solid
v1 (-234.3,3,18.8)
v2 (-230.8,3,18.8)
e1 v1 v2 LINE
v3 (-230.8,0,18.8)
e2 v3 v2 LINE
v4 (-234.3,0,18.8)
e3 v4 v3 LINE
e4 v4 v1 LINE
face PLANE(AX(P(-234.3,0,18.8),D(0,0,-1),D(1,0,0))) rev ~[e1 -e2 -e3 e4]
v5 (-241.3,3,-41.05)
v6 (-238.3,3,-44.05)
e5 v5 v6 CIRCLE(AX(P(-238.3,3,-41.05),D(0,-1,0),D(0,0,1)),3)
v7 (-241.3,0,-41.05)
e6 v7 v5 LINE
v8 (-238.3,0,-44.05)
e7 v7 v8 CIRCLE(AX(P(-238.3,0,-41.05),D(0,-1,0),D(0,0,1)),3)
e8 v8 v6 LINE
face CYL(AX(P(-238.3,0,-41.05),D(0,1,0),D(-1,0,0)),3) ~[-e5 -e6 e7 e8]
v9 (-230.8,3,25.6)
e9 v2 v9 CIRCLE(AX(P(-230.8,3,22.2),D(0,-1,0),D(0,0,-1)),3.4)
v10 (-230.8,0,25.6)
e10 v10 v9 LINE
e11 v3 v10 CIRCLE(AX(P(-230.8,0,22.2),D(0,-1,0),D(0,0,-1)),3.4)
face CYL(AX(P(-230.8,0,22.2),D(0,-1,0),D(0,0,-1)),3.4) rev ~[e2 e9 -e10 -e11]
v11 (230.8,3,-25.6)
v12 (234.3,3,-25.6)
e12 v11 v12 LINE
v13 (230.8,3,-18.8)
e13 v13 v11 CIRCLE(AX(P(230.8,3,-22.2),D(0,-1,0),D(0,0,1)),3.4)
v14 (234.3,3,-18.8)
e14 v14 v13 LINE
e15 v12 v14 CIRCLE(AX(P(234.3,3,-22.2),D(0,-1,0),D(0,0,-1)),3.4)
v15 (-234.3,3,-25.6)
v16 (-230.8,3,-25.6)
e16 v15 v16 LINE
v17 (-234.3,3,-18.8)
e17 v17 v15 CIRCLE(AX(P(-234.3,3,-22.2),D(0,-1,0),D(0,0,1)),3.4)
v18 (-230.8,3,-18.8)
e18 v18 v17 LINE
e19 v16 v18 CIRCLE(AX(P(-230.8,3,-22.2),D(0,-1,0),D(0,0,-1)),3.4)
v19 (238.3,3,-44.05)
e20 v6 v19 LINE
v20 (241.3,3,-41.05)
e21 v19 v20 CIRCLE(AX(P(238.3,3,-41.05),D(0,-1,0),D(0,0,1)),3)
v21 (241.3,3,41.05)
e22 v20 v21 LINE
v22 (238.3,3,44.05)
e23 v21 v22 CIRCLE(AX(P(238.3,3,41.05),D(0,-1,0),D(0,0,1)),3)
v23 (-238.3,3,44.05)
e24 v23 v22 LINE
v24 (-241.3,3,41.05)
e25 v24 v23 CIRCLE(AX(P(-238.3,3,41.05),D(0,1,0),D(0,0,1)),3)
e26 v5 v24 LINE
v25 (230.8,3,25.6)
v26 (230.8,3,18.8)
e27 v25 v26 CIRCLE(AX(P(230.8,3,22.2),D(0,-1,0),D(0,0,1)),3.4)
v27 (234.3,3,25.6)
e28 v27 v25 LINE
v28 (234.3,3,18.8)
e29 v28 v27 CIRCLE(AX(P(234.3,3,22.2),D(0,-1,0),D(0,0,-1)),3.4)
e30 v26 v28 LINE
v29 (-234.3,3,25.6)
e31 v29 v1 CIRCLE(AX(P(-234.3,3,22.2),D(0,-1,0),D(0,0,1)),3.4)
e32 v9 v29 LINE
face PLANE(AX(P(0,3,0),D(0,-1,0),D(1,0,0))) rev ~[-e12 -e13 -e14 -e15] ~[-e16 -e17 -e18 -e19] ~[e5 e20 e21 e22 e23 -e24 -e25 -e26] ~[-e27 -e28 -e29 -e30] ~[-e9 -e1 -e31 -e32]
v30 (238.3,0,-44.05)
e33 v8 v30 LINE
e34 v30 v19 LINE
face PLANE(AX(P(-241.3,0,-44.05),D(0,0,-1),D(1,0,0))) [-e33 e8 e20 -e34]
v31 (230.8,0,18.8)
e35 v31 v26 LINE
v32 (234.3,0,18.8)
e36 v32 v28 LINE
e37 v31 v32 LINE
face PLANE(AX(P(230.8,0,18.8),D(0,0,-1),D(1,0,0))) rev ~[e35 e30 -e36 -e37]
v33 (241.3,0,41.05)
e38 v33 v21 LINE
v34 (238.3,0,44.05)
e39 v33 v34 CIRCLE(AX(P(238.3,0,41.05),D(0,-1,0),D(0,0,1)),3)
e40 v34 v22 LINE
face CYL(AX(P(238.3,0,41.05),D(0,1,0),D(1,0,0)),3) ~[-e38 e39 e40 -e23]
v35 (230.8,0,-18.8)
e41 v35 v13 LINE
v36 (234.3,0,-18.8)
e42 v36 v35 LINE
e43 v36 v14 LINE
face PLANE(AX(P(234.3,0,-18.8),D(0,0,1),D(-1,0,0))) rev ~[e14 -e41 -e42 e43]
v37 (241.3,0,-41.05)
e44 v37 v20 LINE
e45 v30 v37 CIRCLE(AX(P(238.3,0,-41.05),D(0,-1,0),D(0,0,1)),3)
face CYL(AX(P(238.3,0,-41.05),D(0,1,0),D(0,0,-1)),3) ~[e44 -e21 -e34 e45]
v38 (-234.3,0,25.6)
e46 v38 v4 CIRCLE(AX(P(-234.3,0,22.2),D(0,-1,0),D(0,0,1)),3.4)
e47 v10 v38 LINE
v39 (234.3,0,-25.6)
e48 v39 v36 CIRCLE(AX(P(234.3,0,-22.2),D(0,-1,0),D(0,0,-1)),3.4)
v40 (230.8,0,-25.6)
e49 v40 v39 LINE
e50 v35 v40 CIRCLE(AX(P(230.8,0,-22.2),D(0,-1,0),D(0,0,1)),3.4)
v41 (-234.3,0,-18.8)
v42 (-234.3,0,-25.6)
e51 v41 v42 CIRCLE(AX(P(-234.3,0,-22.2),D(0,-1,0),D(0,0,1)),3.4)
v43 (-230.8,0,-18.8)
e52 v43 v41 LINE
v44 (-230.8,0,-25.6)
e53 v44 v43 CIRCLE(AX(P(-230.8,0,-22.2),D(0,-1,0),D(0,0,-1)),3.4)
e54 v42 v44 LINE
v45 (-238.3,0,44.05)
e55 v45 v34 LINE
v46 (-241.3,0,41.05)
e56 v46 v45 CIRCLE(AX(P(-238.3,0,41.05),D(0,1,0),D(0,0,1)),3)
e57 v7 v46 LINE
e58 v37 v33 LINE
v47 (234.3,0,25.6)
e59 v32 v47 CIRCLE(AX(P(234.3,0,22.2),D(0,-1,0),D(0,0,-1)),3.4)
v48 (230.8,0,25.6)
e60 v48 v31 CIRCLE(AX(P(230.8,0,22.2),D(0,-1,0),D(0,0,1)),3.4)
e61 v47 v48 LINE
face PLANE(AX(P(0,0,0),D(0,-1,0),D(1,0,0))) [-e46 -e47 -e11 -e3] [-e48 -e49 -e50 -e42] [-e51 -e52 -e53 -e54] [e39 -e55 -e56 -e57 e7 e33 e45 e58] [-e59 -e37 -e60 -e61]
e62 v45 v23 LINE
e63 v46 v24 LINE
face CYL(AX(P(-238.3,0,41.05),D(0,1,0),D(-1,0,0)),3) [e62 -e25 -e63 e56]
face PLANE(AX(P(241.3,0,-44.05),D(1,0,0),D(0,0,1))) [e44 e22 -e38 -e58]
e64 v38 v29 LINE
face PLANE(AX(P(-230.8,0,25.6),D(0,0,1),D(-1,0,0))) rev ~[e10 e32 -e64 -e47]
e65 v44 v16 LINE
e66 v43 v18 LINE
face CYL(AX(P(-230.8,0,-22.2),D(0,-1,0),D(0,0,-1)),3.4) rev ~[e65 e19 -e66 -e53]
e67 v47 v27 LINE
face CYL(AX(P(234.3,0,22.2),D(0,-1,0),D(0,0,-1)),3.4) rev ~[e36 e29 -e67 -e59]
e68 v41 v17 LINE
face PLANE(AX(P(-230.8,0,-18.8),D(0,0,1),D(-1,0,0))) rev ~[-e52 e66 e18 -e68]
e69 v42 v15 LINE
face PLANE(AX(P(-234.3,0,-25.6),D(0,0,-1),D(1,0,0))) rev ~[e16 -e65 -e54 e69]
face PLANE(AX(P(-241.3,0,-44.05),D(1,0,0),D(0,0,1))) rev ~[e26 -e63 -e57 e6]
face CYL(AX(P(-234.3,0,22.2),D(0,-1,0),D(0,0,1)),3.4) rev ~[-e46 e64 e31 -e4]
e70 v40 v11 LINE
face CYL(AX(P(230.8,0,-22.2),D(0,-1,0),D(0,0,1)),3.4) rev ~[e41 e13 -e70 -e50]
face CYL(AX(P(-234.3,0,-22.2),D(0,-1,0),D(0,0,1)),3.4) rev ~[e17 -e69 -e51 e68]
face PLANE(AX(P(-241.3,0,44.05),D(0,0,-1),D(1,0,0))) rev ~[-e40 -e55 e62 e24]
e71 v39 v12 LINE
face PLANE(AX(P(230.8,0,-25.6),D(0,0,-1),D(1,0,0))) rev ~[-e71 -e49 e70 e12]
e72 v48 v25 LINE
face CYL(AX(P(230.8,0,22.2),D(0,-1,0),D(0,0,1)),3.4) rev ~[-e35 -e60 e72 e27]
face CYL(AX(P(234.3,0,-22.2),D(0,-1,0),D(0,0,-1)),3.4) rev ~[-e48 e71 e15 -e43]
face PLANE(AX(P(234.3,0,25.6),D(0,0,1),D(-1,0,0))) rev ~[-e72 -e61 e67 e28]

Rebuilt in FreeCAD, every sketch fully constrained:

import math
import FreeCAD as App
import Part
import Sketcher


def edges_at(feature, points):
    """Names of the edges that pass closest to the given points."""
    edges = feature.Shape.Edges
    near = lambda p: min(range(len(edges)), key=lambda i: edges[i].distToShape(Part.Vertex(*p))[0])
    return sorted({f"Edge{near(p) + 1}" for p in points})

doc = App.newDocument("Part")
body = doc.addObject("PartDesign::Body", "Body")

sketch1 = doc.addObject("Sketcher::SketchObject", "Sketch")
body.addObject(sketch1)
sketch1.AttachmentSupport = (doc.XZ_Plane, [""])
sketch1.MapMode = "FlatFace"
sketch1.addGeometry([
    Part.LineSegment(App.Vector(-241, 44, 0), App.Vector(-241, -44, 0)),
    Part.LineSegment(App.Vector(-241, -44, 0), App.Vector(241, -44, 0)),
    Part.LineSegment(App.Vector(241, -44, 0), App.Vector(241, 44, 0)),
    Part.LineSegment(App.Vector(241, 44, 0), App.Vector(-241, 44, 0)),
], False)
sketch1.addConstraint([
    Sketcher.Constraint("Coincident", 0, 2, 1, 1),
    Sketcher.Constraint("Coincident", 1, 2, 2, 1),
    Sketcher.Constraint("Coincident", 2, 2, 3, 1),
    Sketcher.Constraint("Coincident", 3, 2, 0, 1),
    Sketcher.Constraint("Vertical", 0),
    Sketcher.Constraint("Horizontal", 1),
    Sketcher.Constraint("Vertical", 2),
    Sketcher.Constraint("Horizontal", 3),
    Sketcher.Constraint("Symmetric", 0, 2, 2, 2, -1, 1),
    Sketcher.Constraint("DistanceX", 1, 1, 1, 2, 482.6),
    Sketcher.Constraint("DistanceY", 0, 2, 0, 1, 88.1),
])
pad1 = doc.addObject("PartDesign::Pad", "Pad")
body.addObject(pad1)
pad1.Profile = sketch1
pad1.Length = 3
pad1.Reversed = True
doc.recompute()

fillet = doc.addObject("PartDesign::Fillet", "Fillet")
body.addObject(fillet)
fillet.Base = (pad1, edges_at(pad1, [
    (-241.3, 1.5, 44.05),
    (241.3, 1.5, 44.05),
    (241.3, 1.5, -44.05),
    (-241.3, 1.5, -44.05),
]))
fillet.Radius = 3

sketch2 = doc.addObject("Sketcher::SketchObject", "Sketch001")
body.addObject(sketch2)
sketch2.AttachmentSupport = (doc.XZ_Plane, [""])
sketch2.MapMode = "FlatFace"
sketch2.addGeometry([
    Part.LineSegment(App.Vector(-234.3, 18.8, 0), App.Vector(-230.8, 18.8, 0)),
    Part.ArcOfCircle(Part.Circle(App.Vector(-230.8, 22.2, 0), App.Vector(0, 0, 1), 3.4), math.radians(-90), math.radians(90)),
    Part.LineSegment(App.Vector(-230.8, 25.6, 0), App.Vector(-234.3, 25.6, 0)),
    Part.ArcOfCircle(Part.Circle(App.Vector(-234.3, 22.2, 0), App.Vector(0, 0, 1), 3.4), math.radians(90), math.radians(270)),
    Part.ArcOfCircle(Part.Circle(App.Vector(230.8, 22.2, 0), App.Vector(0, 0, 1), 3.4), math.radians(90), math.radians(270)),
    Part.LineSegment(App.Vector(230.8, 18.8, 0), App.Vector(234.3, 18.8, 0)),
    Part.ArcOfCircle(Part.Circle(App.Vector(234.3, 22.2, 0), App.Vector(0, 0, 1), 3.4), math.radians(-90), math.radians(90)),
    Part.LineSegment(App.Vector(234.3, 25.6, 0), App.Vector(230.8, 25.6, 0)),
    Part.LineSegment(App.Vector(230.8, -25.6, 0), App.Vector(234.3, -25.6, 0)),
    Part.ArcOfCircle(Part.Circle(App.Vector(234.3, -22.2, 0), App.Vector(0, 0, 1), 3.4), math.radians(-90), math.radians(90)),
    Part.LineSegment(App.Vector(234.3, -18.8, 0), App.Vector(230.8, -18.8, 0)),
    Part.ArcOfCircle(Part.Circle(App.Vector(230.8, -22.2, 0), App.Vector(0, 0, 1), 3.4), math.radians(90), math.radians(270)),
    Part.ArcOfCircle(Part.Circle(App.Vector(-230.8, -22.2, 0), App.Vector(0, 0, 1), 3.4), math.radians(-90), math.radians(90)),
    Part.LineSegment(App.Vector(-230.8, -18.8, 0), App.Vector(-234.3, -18.8, 0)),
    Part.ArcOfCircle(Part.Circle(App.Vector(-234.3, -22.2, 0), App.Vector(0, 0, 1), 3.4), math.radians(90), math.radians(270)),
    Part.LineSegment(App.Vector(-234.3, -25.6, 0), App.Vector(-230.8, -25.6, 0)),
], False)
sketch2.addConstraint([
    Sketcher.Constraint("Tangent", 0, 2, 1, 1),
    Sketcher.Constraint("Tangent", 1, 2, 2, 1),
    Sketcher.Constraint("Tangent", 2, 2, 3, 1),
    Sketcher.Constraint("Tangent", 3, 2, 0, 1),
    Sketcher.Constraint("Tangent", 4, 2, 5, 1),
    Sketcher.Constraint("Tangent", 5, 2, 6, 1),
    Sketcher.Constraint("Tangent", 6, 2, 7, 1),
    Sketcher.Constraint("Tangent", 7, 2, 4, 1),
    Sketcher.Constraint("Tangent", 8, 2, 9, 1),
    Sketcher.Constraint("Tangent", 9, 2, 10, 1),
    Sketcher.Constraint("Tangent", 10, 2, 11, 1),
    Sketcher.Constraint("Tangent", 11, 2, 8, 1),
    Sketcher.Constraint("Tangent", 12, 2, 13, 1),
    Sketcher.Constraint("Tangent", 13, 2, 14, 1),
    Sketcher.Constraint("Tangent", 14, 2, 15, 1),
    Sketcher.Constraint("Tangent", 15, 2, 12, 1),
    Sketcher.Constraint("Horizontal", 0),
    Sketcher.Constraint("Horizontal", 2),
    Sketcher.Constraint("Horizontal", 5),
    Sketcher.Constraint("Horizontal", 7),
    Sketcher.Constraint("Horizontal", 8),
    Sketcher.Constraint("Horizontal", 10),
    Sketcher.Constraint("Horizontal", 13),
    Sketcher.Constraint("Horizontal", 15),
    Sketcher.Constraint("Equal", 3, 4),
    Sketcher.Constraint("Equal", 6, 9),
    Sketcher.Constraint("Equal", 11, 12),
    Sketcher.Constraint("Symmetric", 3, 3, 9, 3, -1, 1),
    Sketcher.Constraint("Symmetric", 4, 3, 12, 3, -1, 1),
    Sketcher.Constraint("Symmetric", 1, 3, 4, 3, -2),
    Sketcher.Constraint("Vertical", 6, 3, 9, 3),
    Sketcher.Constraint("Vertical", 4, 3, 11, 3),
    Sketcher.Constraint("Vertical", 3, 3, 14, 3),
    Sketcher.Constraint("Radius", 1, 3.4),
    Sketcher.Constraint("DistanceX", 0, 1, 0, 2, 3.5),
    Sketcher.Constraint("DistanceY", 12, 3, 0, 2, 41.0),
    Sketcher.Constraint("DistanceX", 1, 3, -1, 1, 230.8),
])
pocket1 = doc.addObject("PartDesign::Pocket", "Pocket")
body.addObject(pocket1)
pocket1.Profile = sketch2
pocket1.Type = "ThroughAll"

doc.recompute()
